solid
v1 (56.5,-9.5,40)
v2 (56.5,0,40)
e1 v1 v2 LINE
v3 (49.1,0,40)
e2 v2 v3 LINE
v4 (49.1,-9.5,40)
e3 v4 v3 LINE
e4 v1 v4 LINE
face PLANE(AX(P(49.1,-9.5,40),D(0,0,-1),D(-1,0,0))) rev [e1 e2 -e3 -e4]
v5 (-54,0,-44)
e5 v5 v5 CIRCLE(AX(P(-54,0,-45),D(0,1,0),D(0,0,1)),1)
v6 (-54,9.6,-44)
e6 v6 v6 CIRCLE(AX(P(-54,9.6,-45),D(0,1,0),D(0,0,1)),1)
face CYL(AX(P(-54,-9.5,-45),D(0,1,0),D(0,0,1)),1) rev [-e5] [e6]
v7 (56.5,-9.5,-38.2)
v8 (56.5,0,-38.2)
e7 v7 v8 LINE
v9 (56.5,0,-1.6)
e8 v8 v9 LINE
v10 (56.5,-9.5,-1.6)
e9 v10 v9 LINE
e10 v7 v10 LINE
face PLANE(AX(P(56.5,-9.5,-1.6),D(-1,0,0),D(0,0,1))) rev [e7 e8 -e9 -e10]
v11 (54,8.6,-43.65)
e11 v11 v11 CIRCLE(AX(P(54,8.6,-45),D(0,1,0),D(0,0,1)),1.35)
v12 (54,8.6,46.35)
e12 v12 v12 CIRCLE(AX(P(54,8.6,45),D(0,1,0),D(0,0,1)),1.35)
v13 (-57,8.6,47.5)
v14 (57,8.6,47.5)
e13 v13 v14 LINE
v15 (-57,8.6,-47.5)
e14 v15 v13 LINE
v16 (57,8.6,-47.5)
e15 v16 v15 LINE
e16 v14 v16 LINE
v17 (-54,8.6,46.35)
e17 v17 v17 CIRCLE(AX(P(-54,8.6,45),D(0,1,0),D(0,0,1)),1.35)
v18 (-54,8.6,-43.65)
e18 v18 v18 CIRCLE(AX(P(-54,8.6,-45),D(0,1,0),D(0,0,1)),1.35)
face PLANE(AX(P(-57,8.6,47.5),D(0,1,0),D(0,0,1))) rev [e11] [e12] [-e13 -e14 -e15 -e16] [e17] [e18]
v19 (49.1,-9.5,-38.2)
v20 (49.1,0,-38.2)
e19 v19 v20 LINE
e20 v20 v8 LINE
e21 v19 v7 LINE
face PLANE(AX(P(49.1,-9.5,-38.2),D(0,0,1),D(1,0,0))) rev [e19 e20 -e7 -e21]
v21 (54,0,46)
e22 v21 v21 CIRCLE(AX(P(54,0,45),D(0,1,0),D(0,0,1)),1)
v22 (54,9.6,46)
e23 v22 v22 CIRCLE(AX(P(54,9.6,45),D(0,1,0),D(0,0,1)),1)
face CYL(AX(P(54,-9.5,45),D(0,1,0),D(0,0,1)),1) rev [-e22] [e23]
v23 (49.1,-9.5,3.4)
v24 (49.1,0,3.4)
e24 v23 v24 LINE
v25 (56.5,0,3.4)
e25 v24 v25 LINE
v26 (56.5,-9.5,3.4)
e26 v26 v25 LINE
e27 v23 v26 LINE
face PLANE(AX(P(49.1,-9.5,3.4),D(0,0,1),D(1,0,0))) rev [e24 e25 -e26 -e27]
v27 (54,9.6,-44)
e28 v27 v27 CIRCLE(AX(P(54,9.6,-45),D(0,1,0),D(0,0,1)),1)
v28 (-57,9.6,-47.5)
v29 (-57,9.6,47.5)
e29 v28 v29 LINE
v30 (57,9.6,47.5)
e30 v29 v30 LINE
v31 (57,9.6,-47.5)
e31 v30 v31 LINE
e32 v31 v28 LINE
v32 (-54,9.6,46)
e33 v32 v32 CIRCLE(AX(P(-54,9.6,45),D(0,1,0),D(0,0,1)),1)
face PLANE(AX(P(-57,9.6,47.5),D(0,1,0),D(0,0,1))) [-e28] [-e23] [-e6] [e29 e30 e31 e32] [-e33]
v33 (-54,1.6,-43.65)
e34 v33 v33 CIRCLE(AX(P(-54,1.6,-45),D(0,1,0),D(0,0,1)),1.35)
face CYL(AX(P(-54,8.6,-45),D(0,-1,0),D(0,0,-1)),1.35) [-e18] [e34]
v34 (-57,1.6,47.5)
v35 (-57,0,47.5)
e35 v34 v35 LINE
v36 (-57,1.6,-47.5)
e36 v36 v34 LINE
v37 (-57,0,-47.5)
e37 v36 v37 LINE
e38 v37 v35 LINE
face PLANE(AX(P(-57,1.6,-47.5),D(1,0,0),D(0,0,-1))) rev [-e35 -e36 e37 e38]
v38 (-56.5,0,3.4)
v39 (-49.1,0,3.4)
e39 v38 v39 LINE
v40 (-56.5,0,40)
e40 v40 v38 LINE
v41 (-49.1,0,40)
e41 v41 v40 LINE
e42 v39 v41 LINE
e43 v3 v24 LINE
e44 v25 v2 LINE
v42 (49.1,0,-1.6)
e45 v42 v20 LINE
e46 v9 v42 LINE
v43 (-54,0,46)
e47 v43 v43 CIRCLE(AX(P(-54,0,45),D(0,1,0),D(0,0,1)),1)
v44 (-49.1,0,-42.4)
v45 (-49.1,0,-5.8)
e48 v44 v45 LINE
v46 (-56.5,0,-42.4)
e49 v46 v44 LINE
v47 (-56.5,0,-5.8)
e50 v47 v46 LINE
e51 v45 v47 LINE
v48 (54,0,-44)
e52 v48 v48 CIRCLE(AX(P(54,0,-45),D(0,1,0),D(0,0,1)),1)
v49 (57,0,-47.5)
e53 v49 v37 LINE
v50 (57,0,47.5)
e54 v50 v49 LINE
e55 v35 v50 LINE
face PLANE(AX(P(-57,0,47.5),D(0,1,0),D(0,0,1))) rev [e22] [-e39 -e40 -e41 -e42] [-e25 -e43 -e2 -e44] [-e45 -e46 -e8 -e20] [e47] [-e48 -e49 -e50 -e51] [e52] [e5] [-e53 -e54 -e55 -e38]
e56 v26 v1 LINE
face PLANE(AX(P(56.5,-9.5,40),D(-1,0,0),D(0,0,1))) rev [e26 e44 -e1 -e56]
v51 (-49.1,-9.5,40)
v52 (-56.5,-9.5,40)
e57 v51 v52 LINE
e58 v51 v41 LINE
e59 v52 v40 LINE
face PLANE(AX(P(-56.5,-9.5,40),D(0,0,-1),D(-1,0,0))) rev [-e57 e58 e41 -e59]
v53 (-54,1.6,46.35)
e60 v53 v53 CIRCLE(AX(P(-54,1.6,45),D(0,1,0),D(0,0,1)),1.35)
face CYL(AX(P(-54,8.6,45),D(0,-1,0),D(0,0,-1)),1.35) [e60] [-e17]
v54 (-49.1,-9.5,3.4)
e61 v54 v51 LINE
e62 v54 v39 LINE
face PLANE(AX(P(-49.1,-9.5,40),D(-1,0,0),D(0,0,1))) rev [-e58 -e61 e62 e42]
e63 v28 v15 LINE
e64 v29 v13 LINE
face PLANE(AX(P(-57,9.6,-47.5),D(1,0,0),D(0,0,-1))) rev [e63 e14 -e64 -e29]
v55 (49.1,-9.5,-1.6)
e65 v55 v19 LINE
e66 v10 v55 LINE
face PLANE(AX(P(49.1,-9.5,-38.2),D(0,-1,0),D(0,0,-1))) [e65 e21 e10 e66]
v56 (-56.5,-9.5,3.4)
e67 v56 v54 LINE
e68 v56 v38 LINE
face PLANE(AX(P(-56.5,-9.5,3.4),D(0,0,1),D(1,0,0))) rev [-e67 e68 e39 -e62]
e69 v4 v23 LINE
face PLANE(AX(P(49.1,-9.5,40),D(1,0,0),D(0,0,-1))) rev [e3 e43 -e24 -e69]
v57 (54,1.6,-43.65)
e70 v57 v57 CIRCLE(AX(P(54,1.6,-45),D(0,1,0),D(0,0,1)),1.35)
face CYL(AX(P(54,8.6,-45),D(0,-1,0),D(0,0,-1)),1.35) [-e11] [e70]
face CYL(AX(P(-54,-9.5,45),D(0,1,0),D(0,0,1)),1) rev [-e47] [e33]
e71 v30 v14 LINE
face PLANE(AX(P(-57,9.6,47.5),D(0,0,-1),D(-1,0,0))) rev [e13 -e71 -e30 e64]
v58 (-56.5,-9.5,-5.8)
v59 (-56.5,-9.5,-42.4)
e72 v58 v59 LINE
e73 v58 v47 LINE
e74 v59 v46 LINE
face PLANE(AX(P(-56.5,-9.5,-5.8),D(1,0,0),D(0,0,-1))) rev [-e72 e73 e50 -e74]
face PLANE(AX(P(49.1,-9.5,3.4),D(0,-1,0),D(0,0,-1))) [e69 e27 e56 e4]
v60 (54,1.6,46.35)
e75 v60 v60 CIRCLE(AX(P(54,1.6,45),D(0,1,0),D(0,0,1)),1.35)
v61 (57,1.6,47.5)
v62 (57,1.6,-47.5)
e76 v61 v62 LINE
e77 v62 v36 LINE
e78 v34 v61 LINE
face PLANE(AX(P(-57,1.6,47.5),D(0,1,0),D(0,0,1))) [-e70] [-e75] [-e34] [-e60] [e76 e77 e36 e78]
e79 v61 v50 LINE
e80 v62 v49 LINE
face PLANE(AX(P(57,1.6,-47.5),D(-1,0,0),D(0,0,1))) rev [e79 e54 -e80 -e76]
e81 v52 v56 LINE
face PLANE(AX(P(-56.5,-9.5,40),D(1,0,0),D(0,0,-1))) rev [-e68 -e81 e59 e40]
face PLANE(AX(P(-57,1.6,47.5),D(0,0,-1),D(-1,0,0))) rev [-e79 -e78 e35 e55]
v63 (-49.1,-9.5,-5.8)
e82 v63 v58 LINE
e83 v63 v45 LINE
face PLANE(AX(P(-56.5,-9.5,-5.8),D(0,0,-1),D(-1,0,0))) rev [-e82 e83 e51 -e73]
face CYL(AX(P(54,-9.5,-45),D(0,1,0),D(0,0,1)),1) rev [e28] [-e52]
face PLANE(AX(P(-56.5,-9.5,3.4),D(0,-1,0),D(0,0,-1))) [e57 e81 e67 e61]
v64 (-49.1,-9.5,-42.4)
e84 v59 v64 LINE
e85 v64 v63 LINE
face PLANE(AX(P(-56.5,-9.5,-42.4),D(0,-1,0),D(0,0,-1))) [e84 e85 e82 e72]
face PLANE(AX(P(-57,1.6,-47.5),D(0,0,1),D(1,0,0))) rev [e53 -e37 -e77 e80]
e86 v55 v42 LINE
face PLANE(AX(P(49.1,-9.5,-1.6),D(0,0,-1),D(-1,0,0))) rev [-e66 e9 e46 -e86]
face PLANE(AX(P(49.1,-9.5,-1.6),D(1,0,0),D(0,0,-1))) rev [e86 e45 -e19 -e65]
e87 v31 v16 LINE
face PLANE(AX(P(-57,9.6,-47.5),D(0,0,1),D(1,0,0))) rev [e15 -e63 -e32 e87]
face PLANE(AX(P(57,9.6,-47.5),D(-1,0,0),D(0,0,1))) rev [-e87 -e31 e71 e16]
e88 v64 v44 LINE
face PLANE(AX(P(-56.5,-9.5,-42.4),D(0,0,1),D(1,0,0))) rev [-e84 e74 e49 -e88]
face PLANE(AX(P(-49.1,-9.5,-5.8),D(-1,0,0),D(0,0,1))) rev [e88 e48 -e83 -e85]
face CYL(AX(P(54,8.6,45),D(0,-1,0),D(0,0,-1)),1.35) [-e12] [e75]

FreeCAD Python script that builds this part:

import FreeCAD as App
import Part
import Sketcher
Q = App.Units.Quantity

doc = App.newDocument("Part")
params = doc.addObject("Spreadsheet::Sheet", "Params")
for row, (alias, value) in enumerate([
    ("sketch1_width", "114 mm"),
    ("sketch1_height", "95 mm"),
    ("pad1_length", "1.6 mm"),
    ("sketch2_width", "7.4 mm"),
    ("sketch2_height", "36.6 mm"),
    ("pad2_length", "9.5 mm"),
    ("sketch3_diameter", "2.7 mm"),
    ("pad3_length", "7 mm"),
    ("sketch4_width", "114 mm"),
    ("sketch4_height", "95 mm"),
    ("pad4_length", "1 mm"),
    ("sketch5_diameter", "2 mm"),
], start=1):
    params.set(f"A{row}", alias)
    params.set(f"B{row}", "=" + value)
    params.setAlias(f"B{row}", alias)

body = doc.addObject("PartDesign::Body", "Body")

# Sketch on XZ plane
sketch1 = body.newObject("Sketcher::SketchObject", "Sketch")
sketch1.AttachmentSupport = (doc.getObject("XZ_Plane"), [""])
sketch1.MapMode = "FlatFace"
sketch1.addGeometry([
    Part.LineSegment(App.Vector(-57, -48, 0), App.Vector(-57, 48, 0)),
    Part.LineSegment(App.Vector(-57, 48, 0), App.Vector(57, 48, 0)),
    Part.LineSegment(App.Vector(57, 48, 0), App.Vector(57, -48, 0)),
    Part.LineSegment(App.Vector(57, -48, 0), App.Vector(-57, -48, 0)),
], False)
sketch1.addConstraint([
    Sketcher.Constraint("Coincident", 0, 2, 1, 1),
    Sketcher.Constraint("Coincident", 1, 2, 2, 1),
    Sketcher.Constraint("Coincident", 2, 2, 3, 1),
    Sketcher.Constraint("Coincident", 3, 2, 0, 1),
    Sketcher.Constraint("Vertical", 0),
    Sketcher.Constraint("Horizontal", 1),
    Sketcher.Constraint("Vertical", 2),
    Sketcher.Constraint("Horizontal", 3),
    Sketcher.Constraint("Symmetric", 0, 2, 2, 2, -1, 1),
    Sketcher.Constraint("DistanceX", 1, 1, 1, 2, Q("114 mm")),
    Sketcher.Constraint("DistanceY", 0, 1, 0, 2, Q("95 mm")),
])
sketch1.setExpression("Constraints[9]", "Params.sketch1_width")
sketch1.setExpression("Constraints[10]", "Params.sketch1_height")
pad1 = body.newObject("PartDesign::Pad", "Pad")
pad1.Profile = sketch1
pad1.setExpression("Length", "Params.pad1_length")
pad1.Reversed = True

# Sketch on XZ plane
sketch2 = body.newObject("Sketcher::SketchObject", "Sketch001")
sketch2.AttachmentSupport = (doc.getObject("XZ_Plane"), [""])
sketch2.MapMode = "FlatFace"
sketch2.addGeometry([
    Part.LineSegment(App.Vector(-56, 40, 0), App.Vector(-56, 3, 0)),  # 0
    Part.LineSegment(App.Vector(-56, 3, 0), App.Vector(-49, 3, 0)),  # 1
    Part.LineSegment(App.Vector(-49, 3, 0), App.Vector(-49, 40, 0)),  # 2
    Part.LineSegment(App.Vector(-49, 40, 0), App.Vector(-56, 40, 0)),  # 3
    Part.LineSegment(App.Vector(-56, -6, 0), App.Vector(-56, -42, 0)),  # 4
    Part.LineSegment(App.Vector(-56, -42, 0), App.Vector(-49, -42, 0)),  # 5
    Part.LineSegment(App.Vector(-49, -42, 0), App.Vector(-49, -6, 0)),  # 6
    Part.LineSegment(App.Vector(-49, -6, 0), App.Vector(-56, -6, 0)),  # 7
    Part.LineSegment(App.Vector(49, 40, 0), App.Vector(49, 3, 0)),  # 8
    Part.LineSegment(App.Vector(49, 3, 0), App.Vector(56, 3, 0)),  # 9
    Part.LineSegment(App.Vector(56, 3, 0), App.Vector(56, 40, 0)),  # 10
    Part.LineSegment(App.Vector(56, 40, 0), App.Vector(49, 40, 0)),  # 11
    Part.LineSegment(App.Vector(49, -2, 0), App.Vector(49, -38, 0)),  # 12
    Part.LineSegment(App.Vector(49, -38, 0), App.Vector(56, -38, 0)),  # 13
    Part.LineSegment(App.Vector(56, -38, 0), App.Vector(56, -2, 0)),  # 14
    Part.LineSegment(App.Vector(56, -2, 0), App.Vector(49, -2, 0)),  # 15
], False)
sketch2.addConstraint([
    Sketcher.Constraint("Coincident", 0, 2, 1, 1),
    Sketcher.Constraint("Coincident", 1, 2, 2, 1),
    Sketcher.Constraint("Coincident", 2, 2, 3, 1),
    Sketcher.Constraint("Coincident", 3, 2, 0, 1),
    Sketcher.Constraint("Coincident", 4, 2, 5, 1),
    Sketcher.Constraint("Coincident", 5, 2, 6, 1),
    Sketcher.Constraint("Coincident", 6, 2, 7, 1),
    Sketcher.Constraint("Coincident", 7, 2, 4, 1),
    Sketcher.Constraint("Coincident", 8, 2, 9, 1),
    Sketcher.Constraint("Coincident", 9, 2, 10, 1),
    Sketcher.Constraint("Coincident", 10, 2, 11, 1),
    Sketcher.Constraint("Coincident", 11, 2, 8, 1),
    Sketcher.Constraint("Coincident", 12, 2, 13, 1),
    Sketcher.Constraint("Coincident", 13, 2, 14, 1),
    Sketcher.Constraint("Coincident", 14, 2, 15, 1),
    Sketcher.Constraint("Coincident", 15, 2, 12, 1),
    Sketcher.Constraint("Vertical", 0),
    Sketcher.Constraint("Horizontal", 1),
    Sketcher.Constraint("Vertical", 2),
    Sketcher.Constraint("Horizontal", 3),
    Sketcher.Constraint("Vertical", 4),
    Sketcher.Constraint("Horizontal", 5),
    Sketcher.Constraint("Vertical", 6),
    Sketcher.Constraint("Horizontal", 7),
    Sketcher.Constraint("Vertical", 8),
    Sketcher.Constraint("Horizontal", 9),
    Sketcher.Constraint("Vertical", 10),
    Sketcher.Constraint("Horizontal", 11),
    Sketcher.Constraint("Vertical", 12),
    Sketcher.Constraint("Horizontal", 13),
    Sketcher.Constraint("Vertical", 14),
    Sketcher.Constraint("Horizontal", 15),
    Sketcher.Constraint("Symmetric", 1, 2, 8, 2, -2),
    Sketcher.Constraint("Symmetric", 3, 2, 10, 2, -2),
    Sketcher.Constraint("Vertical", 3, 2, 4, 2),
    Sketcher.Constraint("Vertical", 2, 2, 5, 2),
    Sketcher.Constraint("Vertical", 11, 2, 12, 2),
    Sketcher.Constraint("Vertical", 10, 2, 13, 2),
    Sketcher.Constraint("Equal", 2, 4),
    Sketcher.Constraint("Equal", 10, 12),
    Sketcher.Constraint("DistanceX", 1, 1, 1, 2, Q("7.4 mm")),
    Sketcher.Constraint("DistanceY", 0, 2, 0, 1, Q("36.6 mm")),
    Sketcher.Constraint("DistanceY", -1, 1, 2, 2, Q("40 mm")),
    Sketcher.Constraint("DistanceX", 0, 2, 9, 2, Q("113 mm")),
    Sketcher.Constraint("DistanceY", 14, 2, 9, 2, Q("5 mm")),
    Sketcher.Constraint("DistanceY", 4, 2, -1, 1, Q("42.4 mm")),
])
sketch2.setExpression("Constraints[40]", "Params.sketch2_width")
sketch2.setExpression("Constraints[41]", "Params.sketch2_height")
pad2 = body.newObject("PartDesign::Pad", "Pad001")
pad2.Profile = sketch2
pad2.setExpression("Length", "Params.pad2_length")

# Sketch on XZ plane
sketch3 = body.newObject("Sketcher::SketchObject", "Sketch002")
sketch3.AttachmentSupport = (doc.getObject("XZ_Plane"), [""])
sketch3.MapMode = "FlatFace"
sketch3.AttachmentOffset = App.Placement(App.Vector(0, 0, -1.6), App.Rotation())
sketch3.addGeometry([
    Part.Circle(App.Vector(-54, -45, 0), App.Vector(0, 0, 1), 1.4),
    Part.Circle(App.Vector(-54, 45, 0), App.Vector(0, 0, 1), 1.4),
    Part.Circle(App.Vector(54, 45, 0), App.Vector(0, 0, 1), 1.4),
    Part.Circle(App.Vector(54, -45, 0), App.Vector(0, 0, 1), 1.4),
], False)
sketch3.addConstraint([
    Sketcher.Constraint("Equal", 0, 1),
    Sketcher.Constraint("Equal", 1, 2),
    Sketcher.Constraint("Equal", 2, 3),
    Sketcher.Constraint("Symmetric", 0, 3, 2, 3, -1, 1),
    Sketcher.Constraint("Symmetric", 1, 3, 3, 3, -1, 1),
    Sketcher.Constraint("Symmetric", 1, 3, 2, 3, -2),
    Sketcher.Constraint("Diameter", 0, Q("2.7 mm")),
    Sketcher.Constraint("DistanceX", 0, 3, -1, 1, Q("54 mm")),
    Sketcher.Constraint("DistanceY", 0, 3, -1, 1, Q("45 mm")),
])
sketch3.setExpression("Constraints[6]", "Params.sketch3_diameter")
pad3 = body.newObject("PartDesign::Pad", "Pad002")
pad3.Profile = sketch3
pad3.setExpression("Length", "Params.pad3_length")
pad3.Reversed = True

# Sketch on XZ plane
sketch4 = body.newObject("Sketcher::SketchObject", "Sketch003")
sketch4.AttachmentSupport = (doc.getObject("XZ_Plane"), [""])
sketch4.MapMode = "FlatFace"
sketch4.AttachmentOffset = App.Placement(App.Vector(0, 0, -8.6), App.Rotation())
sketch4.addGeometry([
    Part.LineSegment(App.Vector(57, 48, 0), App.Vector(57, -48, 0)),
    Part.LineSegment(App.Vector(57, -48, 0), App.Vector(-57, -48, 0)),
    Part.LineSegment(App.Vector(-57, -48, 0), App.Vector(-57, 48, 0)),
    Part.LineSegment(App.Vector(-57, 48, 0), App.Vector(57, 48, 0)),
], False)
sketch4.addConstraint([
    Sketcher.Constraint("Coincident", 0, 2, 1, 1),
    Sketcher.Constraint("Coincident", 1, 2, 2, 1),
    Sketcher.Constraint("Coincident", 2, 2, 3, 1),
    Sketcher.Constraint("Coincident", 3, 2, 0, 1),
    Sketcher.Constraint("Vertical", 0),
    Sketcher.Constraint("Horizontal", 1),
    Sketcher.Constraint("Vertical", 2),
    Sketcher.Constraint("Horizontal", 3),
    Sketcher.Constraint("Symmetric", 0, 2, 2, 2, -1, 1),
    Sketcher.Constraint("DistanceX", 1, 2, 1, 1, Q("114 mm")),
    Sketcher.Constraint("DistanceY", 0, 2, 0, 1, Q("95 mm")),
])
sketch4.setExpression("Constraints[9]", "Params.sketch4_width")
sketch4.setExpression("Constraints[10]", "Params.sketch4_height")
pad4 = body.newObject("PartDesign::Pad", "Pad003")
pad4.Profile = sketch4
pad4.setExpression("Length", "Params.pad4_length")
pad4.Reversed = True

# Sketch on XZ plane
sketch5 = body.newObject("Sketcher::SketchObject", "Sketch004")
sketch5.AttachmentSupport = (doc.getObject("XZ_Plane"), [""])
sketch5.MapMode = "FlatFace"
sketch5.AttachmentOffset = App.Placement(App.Vector(0, 0, -9.6), App.Rotation())
sketch5.addGeometry([
    Part.Circle(App.Vector(-54, -45, 0), App.Vector(0, 0, 1), 1),
    Part.Circle(App.Vector(-54, 45, 0), App.Vector(0, 0, 1), 1),
    Part.Circle(App.Vector(54, 45, 0), App.Vector(0, 0, 1), 1),
    Part.Circle(App.Vector(54, -45, 0), App.Vector(0, 0, 1), 1),
], False)
sketch5.addConstraint([
    Sketcher.Constraint("Equal", 0, 1),
    Sketcher.Constraint("Equal", 1, 2),
    Sketcher.Constraint("Equal", 2, 3),
    Sketcher.Constraint("Symmetric", 0, 3, 2, 3, -1, 1),
    Sketcher.Constraint("Symmetric", 1, 3, 3, 3, -1, 1),
    Sketcher.Constraint("Symmetric", 1, 3, 2, 3, -2),
    Sketcher.Constraint("Diameter", 0, Q("2 mm")),
    Sketcher.Constraint("DistanceX", 0, 3, -1, 1, Q("54 mm")),
    Sketcher.Constraint("DistanceY", 0, 3, -1, 1, Q("45 mm")),
])
sketch5.setExpression("Constraints[6]", "Params.sketch5_diameter")
pocket1 = body.newObject("PartDesign::Pocket", "Pocket")
pocket1.Profile = sketch5
pocket1.Type = "ThroughAll"
pocket1.Reversed = True

doc.recompute()
